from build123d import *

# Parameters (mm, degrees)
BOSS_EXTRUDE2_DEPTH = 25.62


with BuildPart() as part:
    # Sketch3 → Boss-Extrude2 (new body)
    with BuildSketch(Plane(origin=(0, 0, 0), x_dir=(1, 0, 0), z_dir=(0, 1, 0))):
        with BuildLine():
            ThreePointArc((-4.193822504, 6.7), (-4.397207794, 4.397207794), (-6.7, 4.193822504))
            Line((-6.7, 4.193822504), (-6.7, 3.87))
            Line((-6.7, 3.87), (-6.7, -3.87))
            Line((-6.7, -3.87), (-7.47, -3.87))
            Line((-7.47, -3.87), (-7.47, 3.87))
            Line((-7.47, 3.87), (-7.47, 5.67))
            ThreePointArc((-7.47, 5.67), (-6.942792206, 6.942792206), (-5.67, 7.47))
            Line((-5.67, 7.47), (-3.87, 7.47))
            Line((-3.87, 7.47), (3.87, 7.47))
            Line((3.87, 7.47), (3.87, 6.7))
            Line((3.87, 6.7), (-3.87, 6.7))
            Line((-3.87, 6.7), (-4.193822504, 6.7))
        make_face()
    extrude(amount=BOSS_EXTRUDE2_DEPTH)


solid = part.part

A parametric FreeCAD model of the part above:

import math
import FreeCAD as App
import Part
import Sketcher

V = App.Vector

doc = App.newDocument("Part")
params = doc.addObject("Spreadsheet::Sheet", "Params")
for row, (alias, value) in enumerate([
    ("sketch1_radius", "1.8 mm"),
    ("sketch1_width", "9.54 mm"),
    ("sketch1_width2", "0.77 mm"),
    ("pad1_length", "25.62 mm"),
], start=1):
    params.set(f"A{row}", alias)
    params.set(f"B{row}", "=" + value)
    params.setAlias(f"B{row}", alias)

body = doc.addObject("PartDesign::Body", "Body")

# Sketch on XZ plane
sketch1 = body.newObject("Sketcher::SketchObject", "Sketch")
sketch1.AttachmentSupport = (doc.getObject("XZ_Plane"), [""])
sketch1.MapMode = "FlatFace"
sketch1.addGeometry([
    Part.ArcOfCircle(Part.Circle(V(-5.67, -5.67, 0), V(0, 0, 1), 1.8), math.radians(-34.905334), math.radians(124.905334)),  # 0
    Part.LineSegment(V(-4.193823, -6.7, 0), V(3.87, -6.7, 0)),  # 1
    Part.LineSegment(V(3.87, -6.7, 0), V(3.87, -7.47, 0)),  # 2
    Part.LineSegment(V(3.87, -7.47, 0), V(-5.67, -7.47, 0)),  # 3
    Part.ArcOfCircle(Part.Circle(V(-5.67, -5.67, 0), V(0, 0, 1), 1.8), math.radians(180), math.radians(270)),  # 4
    Part.LineSegment(V(-7.47, -5.67, 0), V(-7.47, 3.87, 0)),  # 5
    Part.LineSegment(V(-7.47, 3.87, 0), V(-6.7, 3.87, 0)),  # 6
    Part.LineSegment(V(-6.7, 3.87, 0), V(-6.7, -4.193823, 0)),  # 7
], False)
sketch1.addConstraint([
    Sketcher.Constraint("Coincident", 0, 1, 1, 1),
    Sketcher.Constraint("Coincident", 1, 2, 2, 1),
    Sketcher.Constraint("Coincident", 2, 2, 3, 1),
    Sketcher.Constraint("Tangent", 3, 2, 4, 2),
    Sketcher.Constraint("Tangent", 4, 1, 5, 1),
    Sketcher.Constraint("Coincident", 5, 2, 6, 1),
    Sketcher.Constraint("Coincident", 6, 2, 7, 1),
    Sketcher.Constraint("Coincident", 7, 2, 0, 2),
    Sketcher.Constraint("Horizontal", 1),
    Sketcher.Constraint("Vertical", 2),
    Sketcher.Constraint("Horizontal", 3),
    Sketcher.Constraint("Vertical", 5),
    Sketcher.Constraint("Horizontal", 6),
    Sketcher.Constraint("Vertical", 7),
    Sketcher.Constraint("Coincident", 4, 3, 0, 3),
    Sketcher.Constraint("Equal", 0, 4),
    Sketcher.Constraint("Equal", 6, 2),
    Sketcher.Constraint("Equal", 3, 5),
    Sketcher.Constraint("Radius", 0, 1.8),
    Sketcher.Constraint("DistanceX", 3, 2, 3, 1, 9.54),
    Sketcher.Constraint("DistanceX", 6, 1, 6, 2, 0.77),
    Sketcher.Constraint("DistanceY", 0, 1, -1, 1, 6.7),
    Sketcher.Constraint("DistanceX", 6, 2, -1, 1, 6.7),
])
sketch1.setExpression("Constraints[18]", "Params.sketch1_radius")
sketch1.setExpression("Constraints[19]", "Params.sketch1_width")
sketch1.setExpression("Constraints[20]", "Params.sketch1_width2")
pad1 = body.newObject("PartDesign::Pad", "Pad")
pad1.Profile = sketch1
pad1.setExpression("Length", "Params.pad1_length")
pad1.Reversed = True

doc.recompute()
